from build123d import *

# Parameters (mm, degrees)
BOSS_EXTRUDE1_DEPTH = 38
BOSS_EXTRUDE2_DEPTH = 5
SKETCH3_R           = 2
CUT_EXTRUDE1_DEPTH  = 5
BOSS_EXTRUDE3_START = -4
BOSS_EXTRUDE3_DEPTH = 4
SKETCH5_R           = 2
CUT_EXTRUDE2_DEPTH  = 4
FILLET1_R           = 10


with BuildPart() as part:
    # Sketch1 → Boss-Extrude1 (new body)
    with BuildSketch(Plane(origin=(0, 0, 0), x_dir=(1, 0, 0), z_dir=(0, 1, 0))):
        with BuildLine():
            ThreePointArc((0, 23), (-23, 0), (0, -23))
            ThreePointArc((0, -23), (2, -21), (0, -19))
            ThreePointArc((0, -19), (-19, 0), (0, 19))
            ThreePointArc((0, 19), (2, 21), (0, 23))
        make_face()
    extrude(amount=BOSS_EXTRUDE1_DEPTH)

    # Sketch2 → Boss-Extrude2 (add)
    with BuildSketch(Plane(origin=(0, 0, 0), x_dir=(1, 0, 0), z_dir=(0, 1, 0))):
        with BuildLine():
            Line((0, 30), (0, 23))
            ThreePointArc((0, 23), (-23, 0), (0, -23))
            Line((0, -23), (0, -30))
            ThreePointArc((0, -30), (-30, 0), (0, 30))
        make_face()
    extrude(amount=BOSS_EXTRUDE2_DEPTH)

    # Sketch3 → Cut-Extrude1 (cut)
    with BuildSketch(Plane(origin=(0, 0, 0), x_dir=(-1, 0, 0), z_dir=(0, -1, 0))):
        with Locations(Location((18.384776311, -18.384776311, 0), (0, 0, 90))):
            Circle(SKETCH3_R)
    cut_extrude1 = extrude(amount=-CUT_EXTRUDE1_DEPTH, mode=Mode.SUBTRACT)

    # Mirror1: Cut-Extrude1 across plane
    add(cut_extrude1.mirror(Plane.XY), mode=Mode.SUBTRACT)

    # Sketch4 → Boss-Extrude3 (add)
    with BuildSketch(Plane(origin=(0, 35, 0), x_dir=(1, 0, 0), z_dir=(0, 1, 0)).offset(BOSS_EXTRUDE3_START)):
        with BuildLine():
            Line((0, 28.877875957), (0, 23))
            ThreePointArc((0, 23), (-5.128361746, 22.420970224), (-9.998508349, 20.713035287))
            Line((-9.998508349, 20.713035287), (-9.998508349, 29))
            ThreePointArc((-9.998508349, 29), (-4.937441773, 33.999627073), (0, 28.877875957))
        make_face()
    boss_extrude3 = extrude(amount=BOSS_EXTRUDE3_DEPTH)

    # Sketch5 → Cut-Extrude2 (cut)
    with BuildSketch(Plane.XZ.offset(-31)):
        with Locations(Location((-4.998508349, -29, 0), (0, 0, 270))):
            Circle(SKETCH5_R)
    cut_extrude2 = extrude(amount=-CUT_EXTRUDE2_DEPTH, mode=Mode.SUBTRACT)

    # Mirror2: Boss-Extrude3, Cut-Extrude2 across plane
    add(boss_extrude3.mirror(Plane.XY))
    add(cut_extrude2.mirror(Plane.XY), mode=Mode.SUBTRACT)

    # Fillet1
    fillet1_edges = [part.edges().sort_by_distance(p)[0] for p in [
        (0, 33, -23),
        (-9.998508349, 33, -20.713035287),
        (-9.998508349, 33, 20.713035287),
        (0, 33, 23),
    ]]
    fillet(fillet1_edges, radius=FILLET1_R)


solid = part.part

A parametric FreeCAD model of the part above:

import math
import FreeCAD as App
import Part
import Sketcher

V = App.Vector
Q = App.Units.Quantity


def edges_at(feature, points):
    """Names of the edges that pass closest to the given points."""
    edges = feature.Shape.Edges
    near = lambda p: min(range(len(edges)), key=lambda i: edges[i].distToShape(Part.Vertex(*p))[0])
    return sorted({f"Edge{near(p) + 1}" for p in points})

doc = App.newDocument("Part")
body = doc.addObject("PartDesign::Body", "Body")

# Sketch on XZ plane
sketch1 = body.newObject("Sketcher::SketchObject", "Sketch")
sketch1.AttachmentSupport = (doc.getObject("XZ_Plane"), [""])
sketch1.MapMode = "FlatFace"
sketch1.addGeometry([
    Part.ArcOfCircle(Part.Circle(V(0, 0, 0), V(0, 0, 1), 23), math.radians(90), math.radians(270)),
    Part.ArcOfCircle(Part.Circle(V(0, 21, 0), V(0, 0, 1), 2), math.radians(-90), math.radians(90)),
    Part.ArcOfCircle(Part.Circle(V(0, 0, 0), V(0, 0, 1), 19), math.radians(90), math.radians(270)),
    Part.ArcOfCircle(Part.Circle(V(0, -21, 0), V(0, 0, 1), 2), math.radians(-90), math.radians(90)),
], False)
sketch1.addConstraint([
    Sketcher.Constraint("Tangent", 0, 1, 1, 2),
    Sketcher.Constraint("Tangent", 1, 1, 2, 1),
    Sketcher.Constraint("Tangent", 2, 2, 3, 2),
    Sketcher.Constraint("Tangent", 3, 1, 0, 2),
    Sketcher.Constraint("Coincident", 0, 3, -1, 1),
    Sketcher.Constraint("Coincident", 2, 3, -1, 1),
    Sketcher.Constraint("PointOnObject", 1, 3, -2),
    Sketcher.Constraint("PointOnObject", 3, 3, -2),
    Sketcher.Constraint("Radius", 0, Q("23 mm")),
    Sketcher.Constraint("Radius", 1, Q("2 mm")),
])
pad1 = body.newObject("PartDesign::Pad", "Pad")
pad1.Profile = sketch1
pad1.Length = 38
pad1.Reversed = True

# Sketch on XZ plane
sketch2 = body.newObject("Sketcher::SketchObject", "Sketch001")
sketch2.AttachmentSupport = (doc.getObject("XZ_Plane"), [""])
sketch2.MapMode = "FlatFace"
sketch2.addGeometry([
    Part.LineSegment(V(0, -23, 0), V(0, -30, 0)),
    Part.ArcOfCircle(Part.Circle(V(0, 0, 0), V(0, 0, 1), 30), math.radians(90), math.radians(270)),
    Part.LineSegment(V(0, 30, 0), V(0, 23, 0)),
    Part.ArcOfCircle(Part.Circle(V(0, 0, 0), V(0, 0, 1), 23), math.radians(90), math.radians(270)),
], False)
sketch2.addConstraint([
    Sketcher.Constraint("Coincident", 0, 2, 1, 2),
    Sketcher.Constraint("Coincident", 1, 1, 2, 1),
    Sketcher.Constraint("Coincident", 2, 2, 3, 1),
    Sketcher.Constraint("Coincident", 3, 2, 0, 1),
    Sketcher.Constraint("Vertical", 0),
    Sketcher.Constraint("Vertical", 2),
    Sketcher.Constraint("Coincident", 1, 3, -1, 1),
    Sketcher.Constraint("Coincident", 3, 3, -1, 1),
    Sketcher.Constraint("PointOnObject", 0, 2, -2),
    Sketcher.Constraint("PointOnObject", 1, 1, -2),
    Sketcher.Constraint("Radius", 1, Q("30 mm")),
    Sketcher.Constraint("Radius", 3, Q("23 mm")),
])
pad2 = body.newObject("PartDesign::Pad", "Pad001")
pad2.Profile = sketch2
pad2.Length = 5
pad2.Reversed = True

# Sketch on XZ plane
sketch3 = body.newObject("Sketcher::SketchObject", "Sketch002")
sketch3.AttachmentSupport = (doc.getObject("XZ_Plane"), [""])
sketch3.MapMode = "FlatFace"
sketch3.addGeometry(Part.Circle(V(-18.384776, 18.384776, 0), V(0, 0, 1), 2), False)
sketch3.addConstraint([
    Sketcher.Constraint("Diameter", 0, Q("4 mm")),
    Sketcher.Constraint("DistanceX", 0, 3, -1, 1, Q("18.384776 mm")),
    Sketcher.Constraint("DistanceY", -1, 1, 0, 3, Q("18.384776 mm")),
])
pocket1 = body.newObject("PartDesign::Pocket", "Pocket")
pocket1.Profile = sketch3
pocket1.Length = 5
doc.recompute()

mirrored = body.newObject("PartDesign::Mirrored", "Mirrored")
mirrored.Originals = [pocket1]
mirrored.MirrorPlane = (doc.getObject("XY_Plane"), [""])
body.Tip = mirrored

# Sketch on XZ plane
sketch4 = body.newObject("Sketcher::SketchObject", "Sketch003")
sketch4.AttachmentSupport = (doc.getObject("XZ_Plane"), [""])
sketch4.MapMode = "FlatFace"
sketch4.AttachmentOffset = App.Placement(V(0, 0, -31), App.Rotation())
sketch4.addGeometry([
    Part.LineSegment(V(0, -23, 0), V(0, -28.877876, 0)),
    Part.ArcOfCircle(Part.Circle(V(-4.998508, -29, 0), V(0, 0, 1), 5), math.radians(180), math.radians(361.399578)),
    Part.LineSegment(V(-9.998508, -29, 0), V(-9.998508, -20.713035, 0)),
    Part.ArcOfCircle(Part.Circle(V(0, 0, 0), V(0, 0, 1), 23), math.radians(-115.767335), math.radians(-90)),
], False)
sketch4.addConstraint([
    Sketcher.Constraint("Coincident", 0, 2, 1, 2),
    Sketcher.Constraint("Tangent", 1, 1, 2, 1),
    Sketcher.Constraint("Coincident", 2, 2, 3, 1),
    Sketcher.Constraint("Coincident", 3, 2, 0, 1),
    Sketcher.Constraint("Vertical", 0),
    Sketcher.Constraint("Vertical", 2),
    Sketcher.Constraint("Coincident", 3, 3, -1, 1),
    Sketcher.Constraint("PointOnObject", 0, 2, -2),
    Sketcher.Constraint("Radius", 1, Q("5 mm")),
    Sketcher.Constraint("Radius", 3, Q("23 mm")),
    Sketcher.Constraint("DistanceY", 1, 3, -1, 1, Q("29 mm")),
    Sketcher.Constraint("DistanceY", 0, 2, 0, 1, Q("5.877876 mm")),
])
pad3 = body.newObject("PartDesign::Pad", "Pad002")
pad3.Profile = sketch4
pad3.Length = 4
pad3.Reversed = True

# Sketch on XZ plane
sketch5 = body.newObject("Sketcher::SketchObject", "Sketch004")
sketch5.AttachmentSupport = (doc.getObject("XZ_Plane"), [""])
sketch5.MapMode = "FlatFace"
sketch5.AttachmentOffset = App.Placement(V(0, 0, -31), App.Rotation())
sketch5.addGeometry(Part.Circle(V(-4.998508, -29, 0), V(0, 0, 1), 2), False)
sketch5.addConstraint([
    Sketcher.Constraint("Diameter", 0, Q("4 mm")),
    Sketcher.Constraint("DistanceY", 0, 3, -1, 1, Q("29 mm")),
    Sketcher.Constraint("DistanceX", 0, 3, -1, 1, Q("4.998508 mm")),
])
pocket2 = body.newObject("PartDesign::Pocket", "Pocket001")
pocket2.Profile = sketch5
pocket2.Length = 4
doc.recompute()

mirrored2 = body.newObject("PartDesign::Mirrored", "Mirrored001")
mirrored2.Originals = [pad3, pocket2]
mirrored2.MirrorPlane = (doc.getObject("XY_Plane"), [""])
body.Tip = mirrored2
doc.recompute()

fillet = body.newObject("PartDesign::Fillet", "Fillet")
fillet.Base = (mirrored2, edges_at(mirrored2, [
    (0, 33, -23),
    (-9.999, 33, -20.713),
    (-9.999, 33, 20.713),
    (0, 33, 23),
]))
fillet.Radius = 10

doc.recompute()
